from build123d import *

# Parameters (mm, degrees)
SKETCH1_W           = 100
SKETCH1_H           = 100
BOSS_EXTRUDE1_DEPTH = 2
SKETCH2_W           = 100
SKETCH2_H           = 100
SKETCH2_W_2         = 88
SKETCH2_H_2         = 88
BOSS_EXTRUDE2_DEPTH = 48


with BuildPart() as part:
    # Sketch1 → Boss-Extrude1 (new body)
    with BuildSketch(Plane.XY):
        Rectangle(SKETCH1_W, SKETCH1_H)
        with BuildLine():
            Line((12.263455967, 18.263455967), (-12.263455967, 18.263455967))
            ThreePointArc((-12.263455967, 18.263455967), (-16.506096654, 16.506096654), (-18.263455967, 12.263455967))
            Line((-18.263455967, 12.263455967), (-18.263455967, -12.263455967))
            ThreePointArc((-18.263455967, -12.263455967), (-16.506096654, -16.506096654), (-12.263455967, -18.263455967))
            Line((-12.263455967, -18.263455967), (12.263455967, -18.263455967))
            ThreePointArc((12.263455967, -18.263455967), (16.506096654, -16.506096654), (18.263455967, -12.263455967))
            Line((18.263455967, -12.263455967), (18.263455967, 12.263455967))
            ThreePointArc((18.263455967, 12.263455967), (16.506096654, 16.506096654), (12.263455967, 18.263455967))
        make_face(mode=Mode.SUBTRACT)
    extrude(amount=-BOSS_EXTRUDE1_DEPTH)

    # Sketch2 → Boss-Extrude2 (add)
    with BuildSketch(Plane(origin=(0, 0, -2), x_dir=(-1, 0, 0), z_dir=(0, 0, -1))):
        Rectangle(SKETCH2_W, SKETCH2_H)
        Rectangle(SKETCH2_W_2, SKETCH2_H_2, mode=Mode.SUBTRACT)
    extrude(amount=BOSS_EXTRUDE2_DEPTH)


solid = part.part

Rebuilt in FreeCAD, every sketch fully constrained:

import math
import FreeCAD as App
import Part
import Sketcher

V = App.Vector


def add_polygon(sketch, points):
    """Adds a closed chain of lines whose ends are joined by coincident constraints."""
    first, n = sketch.GeometryCount, len(points)
    for a, b in zip(points, points[1:] + points[:1]):
        sketch.addGeometry(Part.LineSegment(App.Vector(*a, 0), App.Vector(*b, 0)), False)
    for i in range(n):
        sketch.addConstraint(Sketcher.Constraint("Coincident", first + i, 2, first + (i + 1) % n, 1))

doc = App.newDocument("Part")
body = doc.addObject("PartDesign::Body", "Body")

# Sketch on XY plane
sketch1 = body.newObject("Sketcher::SketchObject", "Sketch")
sketch1.AttachmentSupport = (doc.getObject("XY_Plane"), [""])
sketch1.MapMode = "FlatFace"
add_polygon(sketch1, [(-50, 50), (-50, -50), (50, -50), (50, 50)])  # lines 0-3
sketch1.addGeometry(Part.LineSegment(V(-12, 18, 0), V(12, 18, 0)), False)  # 4
sketch1.addGeometry(Part.ArcOfCircle(Part.Circle(V(12, 12, 0), V(0, 0, 1), 6), math.radians(0), math.radians(90)), False)  # 5
sketch1.addGeometry(Part.LineSegment(V(18, 12, 0), V(18, -12, 0)), False)  # 6
sketch1.addGeometry(Part.ArcOfCircle(Part.Circle(V(12, -12, 0), V(0, 0, 1), 6), math.radians(-90), math.radians(0)), False)  # 7
sketch1.addGeometry(Part.LineSegment(V(12, -18, 0), V(-12, -18, 0)), False)  # 8
sketch1.addGeometry(Part.ArcOfCircle(Part.Circle(V(-12, -12, 0), V(0, 0, 1), 6), math.radians(180), math.radians(270)), False)  # 9
sketch1.addGeometry(Part.LineSegment(V(-18, -12, 0), V(-18, 12, 0)), False)  # 10
sketch1.addGeometry(Part.ArcOfCircle(Part.Circle(V(-12, 12, 0), V(0, 0, 1), 6), math.radians(90), math.radians(180)), False)  # 11
sketch1.addConstraint([
    Sketcher.Constraint("Tangent", 4, 2, 5, 2),
    Sketcher.Constraint("Tangent", 5, 1, 6, 1),
    Sketcher.Constraint("Tangent", 6, 2, 7, 2),
    Sketcher.Constraint("Tangent", 7, 1, 8, 1),
    Sketcher.Constraint("Tangent", 8, 2, 9, 2),
    Sketcher.Constraint("Tangent", 9, 1, 10, 1),
    Sketcher.Constraint("Tangent", 10, 2, 11, 2),
    Sketcher.Constraint("Tangent", 11, 1, 4, 1),
    Sketcher.Constraint("Vertical", 0),
    Sketcher.Constraint("Horizontal", 1),
    Sketcher.Constraint("Vertical", 2),
    Sketcher.Constraint("Horizontal", 3),
    Sketcher.Constraint("Horizontal", 4),
    Sketcher.Constraint("Vertical", 6),
    Sketcher.Constraint("Horizontal", 8),
    Sketcher.Constraint("Vertical", 10),
    Sketcher.Constraint("Equal", 5, 7),
    Sketcher.Constraint("Equal", 7, 9),
    Sketcher.Constraint("Equal", 9, 11),
    Sketcher.Constraint("Symmetric", 5, 3, 9, 3, -1, 1),
    Sketcher.Constraint("Symmetric", 0, 2, 2, 2, -1, 1),
    Sketcher.Constraint("Equal", 3, 0),
    Sketcher.Constraint("Equal", 8, 6),
    Sketcher.Constraint("Radius", 5, 6.0),
    Sketcher.Constraint("DistanceX", 1, 1, 1, 2, 100.0),
    Sketcher.Constraint("DistanceX", 4, 1, 4, 2, 24.526912),
])
pad1 = body.newObject("PartDesign::Pad", "Pad")
pad1.Profile = sketch1
pad1.Length = 2
pad1.Reversed = True

# Sketch on XY plane
sketch2 = body.newObject("Sketcher::SketchObject", "Sketch001")
sketch2.AttachmentSupport = (doc.getObject("XY_Plane"), [""])
sketch2.MapMode = "FlatFace"
sketch2.AttachmentOffset = App.Placement(V(0, 0, -2), App.Rotation())
add_polygon(sketch2, [(50, 50), (50, -50), (-50, -50), (-50, 50)])  # lines 0-3
add_polygon(sketch2, [(-44, -44), (44, -44), (44, 44), (-44, 44)])  # lines 4-7
sketch2.addConstraint([
    Sketcher.Constraint("Vertical", 0),
    Sketcher.Constraint("Horizontal", 1),
    Sketcher.Constraint("Vertical", 2),
    Sketcher.Constraint("Horizontal", 3),
    Sketcher.Constraint("Horizontal", 4),
    Sketcher.Constraint("Vertical", 5),
    Sketcher.Constraint("Horizontal", 6),
    Sketcher.Constraint("Vertical", 7),
    Sketcher.Constraint("Symmetric", 0, 2, 2, 2, -1, 1),
    Sketcher.Constraint("Symmetric", 4, 2, 6, 2, -1, 1),
    Sketcher.Constraint("Equal", 3, 0),
    Sketcher.Constraint("Equal", 6, 5),
    Sketcher.Constraint("DistanceX", 1, 2, 1, 1, 100.0),
    Sketcher.Constraint("DistanceX", 4, 1, 4, 2, 88.0),
])
pad2 = body.newObject("PartDesign::Pad", "Pad001")
pad2.Profile = sketch2
pad2.Length = 48
pad2.Reversed = True

doc.recompute()
